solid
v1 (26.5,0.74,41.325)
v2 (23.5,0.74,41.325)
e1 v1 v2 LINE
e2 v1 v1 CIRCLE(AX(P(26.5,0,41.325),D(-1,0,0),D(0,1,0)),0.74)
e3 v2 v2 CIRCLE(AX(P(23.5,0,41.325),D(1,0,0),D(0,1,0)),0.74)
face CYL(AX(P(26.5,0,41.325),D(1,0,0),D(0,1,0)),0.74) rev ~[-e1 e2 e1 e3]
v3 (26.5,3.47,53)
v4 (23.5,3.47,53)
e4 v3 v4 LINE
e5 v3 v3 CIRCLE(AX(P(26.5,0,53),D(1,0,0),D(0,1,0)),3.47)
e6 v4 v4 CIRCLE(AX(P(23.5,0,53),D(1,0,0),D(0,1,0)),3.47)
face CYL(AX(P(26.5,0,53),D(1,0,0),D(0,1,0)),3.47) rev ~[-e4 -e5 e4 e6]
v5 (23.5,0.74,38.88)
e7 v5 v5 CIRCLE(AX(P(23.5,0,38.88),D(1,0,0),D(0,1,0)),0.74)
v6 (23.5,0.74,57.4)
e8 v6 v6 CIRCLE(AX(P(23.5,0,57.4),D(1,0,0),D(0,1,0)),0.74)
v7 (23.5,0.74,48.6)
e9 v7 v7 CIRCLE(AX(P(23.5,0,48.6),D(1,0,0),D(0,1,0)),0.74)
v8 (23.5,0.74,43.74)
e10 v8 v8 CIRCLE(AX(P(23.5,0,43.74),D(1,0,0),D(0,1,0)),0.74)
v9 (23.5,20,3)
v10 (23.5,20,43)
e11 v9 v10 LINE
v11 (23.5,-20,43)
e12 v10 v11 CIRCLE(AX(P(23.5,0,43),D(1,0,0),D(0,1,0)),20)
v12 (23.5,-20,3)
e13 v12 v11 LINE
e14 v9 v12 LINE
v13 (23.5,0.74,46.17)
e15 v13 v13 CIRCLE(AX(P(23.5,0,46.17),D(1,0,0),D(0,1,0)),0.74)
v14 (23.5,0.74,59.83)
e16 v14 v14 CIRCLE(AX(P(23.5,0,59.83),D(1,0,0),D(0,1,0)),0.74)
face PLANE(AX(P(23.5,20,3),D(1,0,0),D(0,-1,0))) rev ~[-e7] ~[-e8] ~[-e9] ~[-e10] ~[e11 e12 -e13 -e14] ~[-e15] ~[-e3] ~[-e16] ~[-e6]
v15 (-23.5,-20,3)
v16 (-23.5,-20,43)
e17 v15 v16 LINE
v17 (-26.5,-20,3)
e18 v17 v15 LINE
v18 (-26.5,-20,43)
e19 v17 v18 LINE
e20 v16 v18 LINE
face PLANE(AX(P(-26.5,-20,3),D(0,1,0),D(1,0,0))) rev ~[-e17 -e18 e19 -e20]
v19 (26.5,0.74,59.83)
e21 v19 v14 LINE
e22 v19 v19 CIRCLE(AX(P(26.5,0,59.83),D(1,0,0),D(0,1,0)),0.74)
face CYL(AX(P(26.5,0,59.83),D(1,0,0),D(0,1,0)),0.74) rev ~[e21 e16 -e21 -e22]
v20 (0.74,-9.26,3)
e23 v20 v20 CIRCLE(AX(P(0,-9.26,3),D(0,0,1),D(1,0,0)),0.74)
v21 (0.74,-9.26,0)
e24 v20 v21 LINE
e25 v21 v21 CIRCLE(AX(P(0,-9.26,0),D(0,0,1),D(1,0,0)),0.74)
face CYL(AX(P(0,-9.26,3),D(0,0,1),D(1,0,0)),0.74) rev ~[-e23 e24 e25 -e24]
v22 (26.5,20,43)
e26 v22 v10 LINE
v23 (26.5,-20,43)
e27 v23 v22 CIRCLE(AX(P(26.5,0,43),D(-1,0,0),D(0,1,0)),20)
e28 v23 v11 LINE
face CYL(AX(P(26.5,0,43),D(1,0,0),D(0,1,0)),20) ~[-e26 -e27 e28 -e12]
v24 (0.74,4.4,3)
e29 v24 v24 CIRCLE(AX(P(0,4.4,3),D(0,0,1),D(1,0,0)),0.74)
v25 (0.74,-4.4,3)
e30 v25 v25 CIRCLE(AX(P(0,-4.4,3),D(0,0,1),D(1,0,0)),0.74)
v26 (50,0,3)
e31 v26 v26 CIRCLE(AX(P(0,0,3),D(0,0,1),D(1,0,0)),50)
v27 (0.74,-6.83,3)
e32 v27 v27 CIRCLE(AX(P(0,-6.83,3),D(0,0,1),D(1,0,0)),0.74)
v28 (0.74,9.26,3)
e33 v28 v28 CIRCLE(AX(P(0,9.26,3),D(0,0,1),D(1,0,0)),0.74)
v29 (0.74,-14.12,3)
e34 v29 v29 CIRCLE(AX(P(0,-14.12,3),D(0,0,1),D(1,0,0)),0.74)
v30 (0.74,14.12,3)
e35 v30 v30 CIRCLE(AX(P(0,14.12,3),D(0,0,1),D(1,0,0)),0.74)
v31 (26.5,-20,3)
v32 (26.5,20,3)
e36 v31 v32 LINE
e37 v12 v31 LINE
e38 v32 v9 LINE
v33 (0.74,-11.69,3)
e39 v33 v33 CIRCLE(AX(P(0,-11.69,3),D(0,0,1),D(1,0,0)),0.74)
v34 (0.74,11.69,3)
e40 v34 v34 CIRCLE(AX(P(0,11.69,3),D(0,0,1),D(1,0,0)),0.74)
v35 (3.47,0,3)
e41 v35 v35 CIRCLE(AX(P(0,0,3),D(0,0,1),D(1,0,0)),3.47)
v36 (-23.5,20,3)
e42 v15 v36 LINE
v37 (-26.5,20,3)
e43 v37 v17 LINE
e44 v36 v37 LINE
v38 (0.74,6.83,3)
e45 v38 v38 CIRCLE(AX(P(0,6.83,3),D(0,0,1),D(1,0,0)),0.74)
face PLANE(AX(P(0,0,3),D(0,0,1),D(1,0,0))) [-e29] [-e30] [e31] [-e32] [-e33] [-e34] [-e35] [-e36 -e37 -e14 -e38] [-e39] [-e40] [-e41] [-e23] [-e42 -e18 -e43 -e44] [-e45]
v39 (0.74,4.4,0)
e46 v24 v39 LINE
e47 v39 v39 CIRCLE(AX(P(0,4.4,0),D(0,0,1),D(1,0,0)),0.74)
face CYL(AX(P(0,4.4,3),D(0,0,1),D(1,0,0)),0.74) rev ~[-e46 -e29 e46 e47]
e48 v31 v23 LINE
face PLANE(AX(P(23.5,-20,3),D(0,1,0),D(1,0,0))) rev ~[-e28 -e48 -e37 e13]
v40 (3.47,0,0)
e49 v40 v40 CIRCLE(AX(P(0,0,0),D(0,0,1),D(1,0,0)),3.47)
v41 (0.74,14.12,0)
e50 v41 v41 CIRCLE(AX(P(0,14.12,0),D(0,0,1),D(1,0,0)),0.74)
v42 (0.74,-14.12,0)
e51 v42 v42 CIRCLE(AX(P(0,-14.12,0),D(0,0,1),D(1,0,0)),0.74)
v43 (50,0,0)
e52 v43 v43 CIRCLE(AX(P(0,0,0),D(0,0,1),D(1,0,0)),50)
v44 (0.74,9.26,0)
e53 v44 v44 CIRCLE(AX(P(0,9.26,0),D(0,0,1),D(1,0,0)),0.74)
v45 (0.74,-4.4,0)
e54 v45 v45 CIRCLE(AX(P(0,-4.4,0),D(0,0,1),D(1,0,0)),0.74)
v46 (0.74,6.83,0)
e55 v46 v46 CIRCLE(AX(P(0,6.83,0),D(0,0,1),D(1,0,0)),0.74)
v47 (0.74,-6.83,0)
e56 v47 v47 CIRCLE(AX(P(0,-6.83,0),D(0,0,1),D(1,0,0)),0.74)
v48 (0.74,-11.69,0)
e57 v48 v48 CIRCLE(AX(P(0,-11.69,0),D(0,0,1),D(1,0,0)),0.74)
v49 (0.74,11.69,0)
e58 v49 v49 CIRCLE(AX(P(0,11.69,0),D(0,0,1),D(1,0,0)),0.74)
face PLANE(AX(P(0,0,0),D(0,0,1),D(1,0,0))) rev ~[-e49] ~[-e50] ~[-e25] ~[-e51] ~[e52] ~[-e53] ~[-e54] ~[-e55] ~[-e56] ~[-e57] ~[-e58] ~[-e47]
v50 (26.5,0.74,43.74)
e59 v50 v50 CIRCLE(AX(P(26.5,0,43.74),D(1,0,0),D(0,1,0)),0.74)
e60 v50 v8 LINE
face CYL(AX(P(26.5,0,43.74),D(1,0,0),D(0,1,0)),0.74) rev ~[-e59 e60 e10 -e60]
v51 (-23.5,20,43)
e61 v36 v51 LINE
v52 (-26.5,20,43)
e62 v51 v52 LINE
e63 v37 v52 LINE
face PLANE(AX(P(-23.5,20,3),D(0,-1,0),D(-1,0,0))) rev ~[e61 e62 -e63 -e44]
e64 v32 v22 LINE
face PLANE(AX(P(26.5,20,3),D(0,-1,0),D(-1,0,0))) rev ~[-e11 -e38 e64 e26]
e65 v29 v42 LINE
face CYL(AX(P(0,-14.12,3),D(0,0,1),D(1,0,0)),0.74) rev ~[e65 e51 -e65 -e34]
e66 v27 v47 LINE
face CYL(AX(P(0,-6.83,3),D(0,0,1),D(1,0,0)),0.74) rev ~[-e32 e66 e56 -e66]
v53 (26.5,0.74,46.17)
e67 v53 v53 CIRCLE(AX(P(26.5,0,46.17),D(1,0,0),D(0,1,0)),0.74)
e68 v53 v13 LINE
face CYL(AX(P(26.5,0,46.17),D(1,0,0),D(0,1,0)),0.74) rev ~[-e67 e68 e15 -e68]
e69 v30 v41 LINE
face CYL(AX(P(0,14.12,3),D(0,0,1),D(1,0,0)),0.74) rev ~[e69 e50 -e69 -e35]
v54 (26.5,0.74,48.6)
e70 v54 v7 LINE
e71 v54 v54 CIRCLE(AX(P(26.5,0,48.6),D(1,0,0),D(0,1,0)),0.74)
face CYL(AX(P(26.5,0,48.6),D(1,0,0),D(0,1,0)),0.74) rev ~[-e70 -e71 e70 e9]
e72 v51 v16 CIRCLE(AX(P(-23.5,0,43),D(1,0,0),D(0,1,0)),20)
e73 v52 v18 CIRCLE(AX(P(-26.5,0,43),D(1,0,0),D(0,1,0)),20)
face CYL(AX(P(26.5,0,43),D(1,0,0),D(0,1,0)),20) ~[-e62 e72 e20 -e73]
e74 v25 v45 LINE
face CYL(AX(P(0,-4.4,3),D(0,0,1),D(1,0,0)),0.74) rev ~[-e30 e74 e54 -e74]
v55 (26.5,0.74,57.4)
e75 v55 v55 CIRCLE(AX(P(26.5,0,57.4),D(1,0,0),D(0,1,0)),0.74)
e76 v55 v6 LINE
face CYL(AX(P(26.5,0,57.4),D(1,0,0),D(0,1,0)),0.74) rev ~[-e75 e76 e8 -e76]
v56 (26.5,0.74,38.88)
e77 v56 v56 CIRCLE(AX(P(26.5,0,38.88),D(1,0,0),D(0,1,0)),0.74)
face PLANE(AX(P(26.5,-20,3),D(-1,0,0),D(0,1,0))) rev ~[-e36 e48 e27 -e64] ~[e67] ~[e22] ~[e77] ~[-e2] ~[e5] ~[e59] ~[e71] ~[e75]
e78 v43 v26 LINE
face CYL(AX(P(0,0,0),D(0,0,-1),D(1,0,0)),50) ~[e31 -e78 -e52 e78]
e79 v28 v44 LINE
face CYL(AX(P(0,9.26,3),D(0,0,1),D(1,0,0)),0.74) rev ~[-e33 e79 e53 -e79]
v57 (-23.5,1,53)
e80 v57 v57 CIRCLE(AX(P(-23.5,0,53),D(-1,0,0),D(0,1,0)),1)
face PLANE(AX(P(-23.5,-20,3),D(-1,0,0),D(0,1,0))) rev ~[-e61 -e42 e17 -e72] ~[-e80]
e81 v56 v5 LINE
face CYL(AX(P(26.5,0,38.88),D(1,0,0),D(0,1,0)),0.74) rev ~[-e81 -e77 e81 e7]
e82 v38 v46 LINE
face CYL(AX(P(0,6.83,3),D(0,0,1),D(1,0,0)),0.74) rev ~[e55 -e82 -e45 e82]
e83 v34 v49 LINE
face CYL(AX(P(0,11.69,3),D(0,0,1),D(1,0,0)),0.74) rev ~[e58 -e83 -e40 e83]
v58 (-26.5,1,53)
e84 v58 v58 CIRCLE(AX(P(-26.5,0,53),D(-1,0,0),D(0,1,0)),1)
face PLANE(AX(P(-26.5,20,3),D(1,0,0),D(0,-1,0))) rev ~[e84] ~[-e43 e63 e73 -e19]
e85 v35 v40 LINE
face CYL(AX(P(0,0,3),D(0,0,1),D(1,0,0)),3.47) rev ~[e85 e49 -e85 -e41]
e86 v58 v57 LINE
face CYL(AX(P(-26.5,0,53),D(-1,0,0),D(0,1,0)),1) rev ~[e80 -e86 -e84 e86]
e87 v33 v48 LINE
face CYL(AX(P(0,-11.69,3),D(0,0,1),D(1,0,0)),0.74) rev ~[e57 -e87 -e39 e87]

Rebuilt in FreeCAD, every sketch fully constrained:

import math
import FreeCAD as App
import Part
import Sketcher

V = App.Vector
Q = App.Units.Quantity


def add_polygon(sketch, points):
    """Adds a closed chain of lines whose ends are joined by coincident constraints."""
    first, n = sketch.GeometryCount, len(points)
    for a, b in zip(points, points[1:] + points[:1]):
        sketch.addGeometry(Part.LineSegment(App.Vector(*a, 0), App.Vector(*b, 0)), False)
    for i in range(n):
        sketch.addConstraint(Sketcher.Constraint("Coincident", first + i, 2, first + (i + 1) % n, 1))

doc = App.newDocument("Part")
params = doc.addObject("Spreadsheet::Sheet", "Params")
for row, (alias, value) in enumerate([
    ("sketch1_diameter", "100 mm"),
    ("pad1_length", "3 mm"),
    ("sketch2_diameter", "6.94 mm"),
    ("sketch2_diameter2", "1.48 mm"),
    ("pocket1_length", "36.9192 mm"),
    ("sketch3_width", "3 mm"),
    ("sketch3_height", "40 mm"),
    ("pad2_length", "70 mm"),
    ("sketch4_radius", "20 mm"),
    ("pocket2_length", "67.3152 mm"),
    ("sketch5_diameter", "6.94 mm"),
    ("sketch5_diameter2", "1.45 mm"),
    ("pocket3_length", "3 mm"),
    ("sketch6_diameter", "1.48 mm"),
    ("pocket4_length", "3 mm"),
    ("sketch7_diameter", "2 mm"),
    ("pocket5_length", "4.0137 mm"),
], start=1):
    params.set(f"A{row}", alias)
    params.set(f"B{row}", "=" + value)
    params.setAlias(f"B{row}", alias)

body = doc.addObject("PartDesign::Body", "Body")

# Sketch on XY plane
sketch1 = body.newObject("Sketcher::SketchObject", "Sketch")
sketch1.AttachmentSupport = (doc.getObject("XY_Plane"), [""])
sketch1.MapMode = "FlatFace"
sketch1.addGeometry(Part.Circle(V(0, 0, 0), V(0, 0, 1), 50), False)
sketch1.addConstraint([
    Sketcher.Constraint("Coincident", 0, 3, -1, 1),
    Sketcher.Constraint("Diameter", 0, Q("100 mm")),
])
sketch1.setExpression("Constraints[1]", "Params.sketch1_diameter")
pad1 = body.newObject("PartDesign::Pad", "Pad")
pad1.Profile = sketch1
pad1.setExpression("Length", "Params.pad1_length")

# Sketch on XY plane
sketch2 = body.newObject("Sketcher::SketchObject", "Sketch001")
sketch2.AttachmentSupport = (doc.getObject("XY_Plane"), [""])
sketch2.MapMode = "FlatFace"
sketch2.AttachmentOffset = App.Placement(V(0, 0, 3), App.Rotation())
sketch2.addGeometry([
    Part.Circle(V(0, 0, 0), V(0, 0, 1), 3.5),  # 0
    Part.Circle(V(0, 4.4, 0), V(0, 0, 1), 0.7),  # 1
    Part.Circle(V(0, 6.8, 0), V(0, 0, 1), 0.7),  # 2
    Part.Circle(V(0, 9.3, 0), V(0, 0, 1), 0.7),  # 3
    Part.Circle(V(0, 11.7, 0), V(0, 0, 1), 0.7),  # 4
    Part.Circle(V(0, 14.1, 0), V(0, 0, 1), 0.7),  # 5
    Part.Circle(V(0, -4.4, 0), V(0, 0, 1), 0.7),  # 6
    Part.Circle(V(0, -6.8, 0), V(0, 0, 1), 0.7),  # 7
    Part.Circle(V(0, -9.3, 0), V(0, 0, 1), 0.7),  # 8
    Part.Circle(V(0, -11.7, 0), V(0, 0, 1), 0.7),  # 9
    Part.Circle(V(0, -14.1, 0), V(0, 0, 1), 0.7),  # 10
], False)
sketch2.addConstraint([
    Sketcher.Constraint("Coincident", 0, 3, -1, 1),
    Sketcher.Constraint("Equal", 1, 2),
    Sketcher.Constraint("Equal", 2, 3),
    Sketcher.Constraint("Equal", 3, 4),
    Sketcher.Constraint("Equal", 4, 5),
    Sketcher.Constraint("Equal", 5, 6),
    Sketcher.Constraint("Equal", 6, 7),
    Sketcher.Constraint("Equal", 7, 8),
    Sketcher.Constraint("Equal", 8, 9),
    Sketcher.Constraint("Equal", 9, 10),
    Sketcher.Constraint("Symmetric", 1, 3, 6, 3, -1, 1),
    Sketcher.Constraint("Symmetric", 2, 3, 7, 3, -1, 1),
    Sketcher.Constraint("Symmetric", 3, 3, 8, 3, -1, 1),
    Sketcher.Constraint("Symmetric", 4, 3, 9, 3, -1, 1),
    Sketcher.Constraint("Symmetric", 5, 3, 10, 3, -1, 1),
    Sketcher.Constraint("PointOnObject", 1, 3, -2),
    Sketcher.Constraint("PointOnObject", 2, 3, -2),
    Sketcher.Constraint("PointOnObject", 3, 3, -2),
    Sketcher.Constraint("PointOnObject", 4, 3, -2),
    Sketcher.Constraint("PointOnObject", 5, 3, -2),
    Sketcher.Constraint("Diameter", 0, Q("6.94 mm")),
    Sketcher.Constraint("Diameter", 1, Q("1.48 mm")),
    Sketcher.Constraint("DistanceY", -1, 1, 1, 3, Q("4.4 mm")),
    Sketcher.Constraint("DistanceY", -1, 1, 2, 3, Q("6.83 mm")),
    Sketcher.Constraint("DistanceY", -1, 1, 3, 3, Q("9.26 mm")),
    Sketcher.Constraint("DistanceY", -1, 1, 4, 3, Q("11.69 mm")),
    Sketcher.Constraint("DistanceY", -1, 1, 5, 3, Q("14.12 mm")),
])
sketch2.setExpression("Constraints[20]", "Params.sketch2_diameter")
sketch2.setExpression("Constraints[21]", "Params.sketch2_diameter2")
pocket1 = body.newObject("PartDesign::Pocket", "Pocket")
pocket1.Profile = sketch2
pocket1.setExpression("Length", "Params.pocket1_length")

# Sketch on XY plane
sketch3 = body.newObject("Sketcher::SketchObject", "Sketch002")
sketch3.AttachmentSupport = (doc.getObject("XY_Plane"), [""])
sketch3.MapMode = "FlatFace"
sketch3.AttachmentOffset = App.Placement(V(0, 0, 3), App.Rotation())
add_polygon(sketch3, [(-23.5, -20), (-23.5, 20), (-26.5, 20), (-26.5, -20)])  # lines 0-3
add_polygon(sketch3, [(26.5, -20), (26.5, 20), (23.5, 20), (23.5, -20)])  # lines 4-7
sketch3.addConstraint([
    Sketcher.Constraint("Vertical", 0),
    Sketcher.Constraint("Horizontal", 1),
    Sketcher.Constraint("Vertical", 2),
    Sketcher.Constraint("Horizontal", 3),
    Sketcher.Constraint("Vertical", 4),
    Sketcher.Constraint("Horizontal", 5),
    Sketcher.Constraint("Vertical", 6),
    Sketcher.Constraint("Horizontal", 7),
    Sketcher.Constraint("Symmetric", 2, 2, 4, 2, -1, 1),
    Sketcher.Constraint("Symmetric", 0, 2, 6, 2, -1, 1),
    Sketcher.Constraint("Horizontal", 1, 2, 4, 2),
    Sketcher.Constraint("DistanceX", 1, 2, 1, 1, Q("3 mm")),
    Sketcher.Constraint("DistanceY", 0, 1, 0, 2, Q("40 mm")),
    Sketcher.Constraint("DistanceX", 0, 2, 4, 2, Q("50 mm")),
])
sketch3.setExpression("Constraints[19]", "Params.sketch3_width")
sketch3.setExpression("Constraints[20]", "Params.sketch3_height")
pad2 = body.newObject("PartDesign::Pad", "Pad001")
pad2.Profile = sketch3
pad2.setExpression("Length", "Params.pad2_length")

# Sketch on YZ plane
sketch4 = body.newObject("Sketcher::SketchObject", "Sketch003")
sketch4.AttachmentSupport = (doc.getObject("YZ_Plane"), [""])
sketch4.MapMode = "FlatFace"
sketch4.AttachmentOffset = App.Placement(V(0, 0, 26.5), App.Rotation())
sketch4.addGeometry([
    Part.LineSegment(V(-22.4, 43, 0), V(-20, 43, 0)),  # 0
    Part.ArcOfCircle(Part.Circle(V(0, 43, 0), V(0, 0, 1), 20), math.radians(0), math.radians(180)),  # 1
    Part.LineSegment(V(20, 43, 0), V(21.2, 43, 0)),  # 2
    Part.LineSegment(V(21.2, 43, 0), V(21.2, 74.3, 0)),  # 3
    Part.LineSegment(V(21.2, 74.3, 0), V(-22.4, 74.3, 0)),  # 4
    Part.LineSegment(V(-22.4, 74.3, 0), V(-22.4, 43, 0)),  # 5
], False)
sketch4.addConstraint([
    Sketcher.Constraint("Coincident", 0, 2, 1, 2),
    Sketcher.Constraint("Coincident", 1, 1, 2, 1),
    Sketcher.Constraint("Coincident", 2, 2, 3, 1),
    Sketcher.Constraint("Coincident", 3, 2, 4, 1),
    Sketcher.Constraint("Coincident", 4, 2, 5, 1),
    Sketcher.Constraint("Coincident", 5, 2, 0, 1),
    Sketcher.Constraint("Horizontal", 0),
    Sketcher.Constraint("Horizontal", 2),
    Sketcher.Constraint("Vertical", 3),
    Sketcher.Constraint("Horizontal", 4),
    Sketcher.Constraint("Vertical", 5),
    Sketcher.Constraint("Symmetric", 0, 2, 1, 1, -2),
    Sketcher.Constraint("Horizontal", 1, 3, 0, 2),
    Sketcher.Constraint("Radius", 1, Q("20 mm")),
    Sketcher.Constraint("DistanceY", -1, 1, 1, 3, Q("43 mm")),
    Sketcher.Constraint("DistanceX", 0, 1, 0, 2, Q("2.417 mm")),
    Sketcher.Constraint("DistanceX", 2, 1, 2, 2, Q("1.1932 mm")),
    Sketcher.Constraint("DistanceY", 3, 1, 3, 2, Q("31.3058 mm")),
])
sketch4.setExpression("Constraints[13]", "Params.sketch4_radius")
pocket2 = body.newObject("PartDesign::Pocket", "Pocket001")
pocket2.Profile = sketch4
pocket2.setExpression("Length", "Params.pocket2_length")

# Sketch on YZ plane
sketch5 = body.newObject("Sketcher::SketchObject", "Sketch004")
sketch5.AttachmentSupport = (doc.getObject("YZ_Plane"), [""])
sketch5.MapMode = "FlatFace"
sketch5.AttachmentOffset = App.Placement(V(0, 0, 26.5), App.Rotation())
sketch5.addGeometry([
    Part.Circle(V(0, 53, 0), V(0, 0, 1), 3.5),  # 0
    Part.Circle(V(0, 57.4, 0), V(0, 0, 1), 0.7),  # 1
    Part.Circle(V(0, 59.8, 0), V(0, 0, 1), 0.7),  # 2
    Part.Circle(V(0, 48.6, 0), V(0, 0, 1), 0.7),  # 3
    Part.Circle(V(0, 46.2, 0), V(0, 0, 1), 0.7),  # 4
    Part.Circle(V(0, 43.7, 0), V(0, 0, 1), 0.7),  # 5
    Part.Circle(V(0, 41.3, 0), V(0, 0, 1), 0.7),  # 6
    Part.Circle(V(0, 38.9, 0), V(0, 0, 1), 0.7),  # 7
], False)
sketch5.addConstraint([
    Sketcher.Constraint("Equal", 1, 2),
    Sketcher.Constraint("Equal", 2, 3),
    Sketcher.Constraint("Equal", 3, 4),
    Sketcher.Constraint("Equal", 4, 5),
    Sketcher.Constraint("Equal", 5, 6),
    Sketcher.Constraint("Equal", 6, 7),
    Sketcher.Constraint("PointOnObject", 0, 3, -2),
    Sketcher.Constraint("PointOnObject", 1, 3, -2),
    Sketcher.Constraint("PointOnObject", 2, 3, -2),
    Sketcher.Constraint("PointOnObject", 3, 3, -2),
    Sketcher.Constraint("PointOnObject", 4, 3, -2),
    Sketcher.Constraint("PointOnObject", 5, 3, -2),
    Sketcher.Constraint("PointOnObject", 6, 3, -2),
    Sketcher.Constraint("PointOnObject", 7, 3, -2),
    Sketcher.Constraint("Diameter", 0, Q("6.94 mm")),
    Sketcher.Constraint("Diameter", 1, Q("1.45 mm")),
    Sketcher.Constraint("DistanceY", -1, 1, 0, 3, Q("53 mm")),
    Sketcher.Constraint("DistanceY", -1, 1, 1, 3, Q("57.4 mm")),
    Sketcher.Constraint("DistanceY", -1, 1, 3, 3, Q("48.6 mm")),
    Sketcher.Constraint("DistanceY", -1, 1, 2, 3, Q("59.83 mm")),
    Sketcher.Constraint("DistanceY", -1, 1, 4, 3, Q("46.17 mm")),
    Sketcher.Constraint("DistanceY", -1, 1, 5, 3, Q("43.74 mm")),
    Sketcher.Constraint("DistanceY", -1, 1, 6, 3, Q("41.31 mm")),
    Sketcher.Constraint("DistanceY", -1, 1, 7, 3, Q("38.88 mm")),
])
sketch5.setExpression("Constraints[14]", "Params.sketch5_diameter")
sketch5.setExpression("Constraints[15]", "Params.sketch5_diameter2")
pocket3 = body.newObject("PartDesign::Pocket", "Pocket002")
pocket3.Profile = sketch5
pocket3.setExpression("Length", "Params.pocket3_length")

# Sketch on YZ plane
sketch6 = body.newObject("Sketcher::SketchObject", "Sketch005")
sketch6.AttachmentSupport = (doc.getObject("YZ_Plane"), [""])
sketch6.MapMode = "FlatFace"
sketch6.AttachmentOffset = App.Placement(V(0, 0, 26.5), App.Rotation())
sketch6.addGeometry([
    Part.Circle(V(0, 57.4, 0), V(0, 0, 1), 0.7),  # 0
    Part.Circle(V(0, 59.8, 0), V(0, 0, 1), 0.7),  # 1
    Part.Circle(V(0, 38.9, 0), V(0, 0, 1), 0.7),  # 2
    Part.Circle(V(0, 41.3, 0), V(0, 0, 1), 0.7),  # 3
    Part.Circle(V(0, 43.7, 0), V(0, 0, 1), 0.7),  # 4
    Part.Circle(V(0, 46.2, 0), V(0, 0, 1), 0.7),  # 5
    Part.Circle(V(0, 48.6, 0), V(0, 0, 1), 0.7),  # 6
], False)
sketch6.addConstraint([
    Sketcher.Constraint("Equal", 0, 1),
    Sketcher.Constraint("Equal", 1, 2),
    Sketcher.Constraint("Equal", 2, 3),
    Sketcher.Constraint("Equal", 3, 4),
    Sketcher.Constraint("Equal", 4, 5),
    Sketcher.Constraint("Equal", 5, 6),
    Sketcher.Constraint("PointOnObject", 0, 3, -2),
    Sketcher.Constraint("PointOnObject", 1, 3, -2),
    Sketcher.Constraint("PointOnObject", 2, 3, -2),
    Sketcher.Constraint("PointOnObject", 3, 3, -2),
    Sketcher.Constraint("PointOnObject", 4, 3, -2),
    Sketcher.Constraint("PointOnObject", 5, 3, -2),
    Sketcher.Constraint("PointOnObject", 6, 3, -2),
    Sketcher.Constraint("Diameter", 0, Q("1.48 mm")),
    Sketcher.Constraint("DistanceY", -1, 1, 0, 3, Q("57.4 mm")),
    Sketcher.Constraint("DistanceY", -1, 1, 6, 3, Q("48.6 mm")),
    Sketcher.Constraint("DistanceY", -1, 1, 1, 3, Q("59.83 mm")),
    Sketcher.Constraint("DistanceY", -1, 1, 2, 3, Q("38.88 mm")),
    Sketcher.Constraint("DistanceY", -1, 1, 4, 3, Q("43.74 mm")),
    Sketcher.Constraint("DistanceY", -1, 1, 5, 3, Q("46.17 mm")),
    Sketcher.Constraint("DistanceY", -1, 1, 3, 3, Q("41.325 mm")),
])
sketch6.setExpression("Constraints[13]", "Params.sketch6_diameter")
pocket4 = body.newObject("PartDesign::Pocket", "Pocket003")
pocket4.Profile = sketch6
pocket4.setExpression("Length", "Params.pocket4_length")

# Sketch on YZ plane
sketch7 = body.newObject("Sketcher::SketchObject", "Sketch006")
sketch7.AttachmentSupport = (doc.getObject("YZ_Plane"), [""])
sketch7.MapMode = "FlatFace"
sketch7.AttachmentOffset = App.Placement(V(0, 0, -26.5), App.Rotation())
sketch7.addGeometry(Part.Circle(V(0, 53, 0), V(0, 0, 1), 1), False)
sketch7.addConstraint([
    Sketcher.Constraint("PointOnObject", 0, 3, -2),
    Sketcher.Constraint("Diameter", 0, Q("2 mm")),
    Sketcher.Constraint("DistanceY", -1, 1, 0, 3, Q("53 mm")),
])
sketch7.setExpression("Constraints[1]", "Params.sketch7_diameter")
pocket5 = body.newObject("PartDesign::Pocket", "Pocket004")
pocket5.Profile = sketch7
pocket5.setExpression("Length", "Params.pocket5_length")
pocket5.Reversed = True

doc.recompute()
